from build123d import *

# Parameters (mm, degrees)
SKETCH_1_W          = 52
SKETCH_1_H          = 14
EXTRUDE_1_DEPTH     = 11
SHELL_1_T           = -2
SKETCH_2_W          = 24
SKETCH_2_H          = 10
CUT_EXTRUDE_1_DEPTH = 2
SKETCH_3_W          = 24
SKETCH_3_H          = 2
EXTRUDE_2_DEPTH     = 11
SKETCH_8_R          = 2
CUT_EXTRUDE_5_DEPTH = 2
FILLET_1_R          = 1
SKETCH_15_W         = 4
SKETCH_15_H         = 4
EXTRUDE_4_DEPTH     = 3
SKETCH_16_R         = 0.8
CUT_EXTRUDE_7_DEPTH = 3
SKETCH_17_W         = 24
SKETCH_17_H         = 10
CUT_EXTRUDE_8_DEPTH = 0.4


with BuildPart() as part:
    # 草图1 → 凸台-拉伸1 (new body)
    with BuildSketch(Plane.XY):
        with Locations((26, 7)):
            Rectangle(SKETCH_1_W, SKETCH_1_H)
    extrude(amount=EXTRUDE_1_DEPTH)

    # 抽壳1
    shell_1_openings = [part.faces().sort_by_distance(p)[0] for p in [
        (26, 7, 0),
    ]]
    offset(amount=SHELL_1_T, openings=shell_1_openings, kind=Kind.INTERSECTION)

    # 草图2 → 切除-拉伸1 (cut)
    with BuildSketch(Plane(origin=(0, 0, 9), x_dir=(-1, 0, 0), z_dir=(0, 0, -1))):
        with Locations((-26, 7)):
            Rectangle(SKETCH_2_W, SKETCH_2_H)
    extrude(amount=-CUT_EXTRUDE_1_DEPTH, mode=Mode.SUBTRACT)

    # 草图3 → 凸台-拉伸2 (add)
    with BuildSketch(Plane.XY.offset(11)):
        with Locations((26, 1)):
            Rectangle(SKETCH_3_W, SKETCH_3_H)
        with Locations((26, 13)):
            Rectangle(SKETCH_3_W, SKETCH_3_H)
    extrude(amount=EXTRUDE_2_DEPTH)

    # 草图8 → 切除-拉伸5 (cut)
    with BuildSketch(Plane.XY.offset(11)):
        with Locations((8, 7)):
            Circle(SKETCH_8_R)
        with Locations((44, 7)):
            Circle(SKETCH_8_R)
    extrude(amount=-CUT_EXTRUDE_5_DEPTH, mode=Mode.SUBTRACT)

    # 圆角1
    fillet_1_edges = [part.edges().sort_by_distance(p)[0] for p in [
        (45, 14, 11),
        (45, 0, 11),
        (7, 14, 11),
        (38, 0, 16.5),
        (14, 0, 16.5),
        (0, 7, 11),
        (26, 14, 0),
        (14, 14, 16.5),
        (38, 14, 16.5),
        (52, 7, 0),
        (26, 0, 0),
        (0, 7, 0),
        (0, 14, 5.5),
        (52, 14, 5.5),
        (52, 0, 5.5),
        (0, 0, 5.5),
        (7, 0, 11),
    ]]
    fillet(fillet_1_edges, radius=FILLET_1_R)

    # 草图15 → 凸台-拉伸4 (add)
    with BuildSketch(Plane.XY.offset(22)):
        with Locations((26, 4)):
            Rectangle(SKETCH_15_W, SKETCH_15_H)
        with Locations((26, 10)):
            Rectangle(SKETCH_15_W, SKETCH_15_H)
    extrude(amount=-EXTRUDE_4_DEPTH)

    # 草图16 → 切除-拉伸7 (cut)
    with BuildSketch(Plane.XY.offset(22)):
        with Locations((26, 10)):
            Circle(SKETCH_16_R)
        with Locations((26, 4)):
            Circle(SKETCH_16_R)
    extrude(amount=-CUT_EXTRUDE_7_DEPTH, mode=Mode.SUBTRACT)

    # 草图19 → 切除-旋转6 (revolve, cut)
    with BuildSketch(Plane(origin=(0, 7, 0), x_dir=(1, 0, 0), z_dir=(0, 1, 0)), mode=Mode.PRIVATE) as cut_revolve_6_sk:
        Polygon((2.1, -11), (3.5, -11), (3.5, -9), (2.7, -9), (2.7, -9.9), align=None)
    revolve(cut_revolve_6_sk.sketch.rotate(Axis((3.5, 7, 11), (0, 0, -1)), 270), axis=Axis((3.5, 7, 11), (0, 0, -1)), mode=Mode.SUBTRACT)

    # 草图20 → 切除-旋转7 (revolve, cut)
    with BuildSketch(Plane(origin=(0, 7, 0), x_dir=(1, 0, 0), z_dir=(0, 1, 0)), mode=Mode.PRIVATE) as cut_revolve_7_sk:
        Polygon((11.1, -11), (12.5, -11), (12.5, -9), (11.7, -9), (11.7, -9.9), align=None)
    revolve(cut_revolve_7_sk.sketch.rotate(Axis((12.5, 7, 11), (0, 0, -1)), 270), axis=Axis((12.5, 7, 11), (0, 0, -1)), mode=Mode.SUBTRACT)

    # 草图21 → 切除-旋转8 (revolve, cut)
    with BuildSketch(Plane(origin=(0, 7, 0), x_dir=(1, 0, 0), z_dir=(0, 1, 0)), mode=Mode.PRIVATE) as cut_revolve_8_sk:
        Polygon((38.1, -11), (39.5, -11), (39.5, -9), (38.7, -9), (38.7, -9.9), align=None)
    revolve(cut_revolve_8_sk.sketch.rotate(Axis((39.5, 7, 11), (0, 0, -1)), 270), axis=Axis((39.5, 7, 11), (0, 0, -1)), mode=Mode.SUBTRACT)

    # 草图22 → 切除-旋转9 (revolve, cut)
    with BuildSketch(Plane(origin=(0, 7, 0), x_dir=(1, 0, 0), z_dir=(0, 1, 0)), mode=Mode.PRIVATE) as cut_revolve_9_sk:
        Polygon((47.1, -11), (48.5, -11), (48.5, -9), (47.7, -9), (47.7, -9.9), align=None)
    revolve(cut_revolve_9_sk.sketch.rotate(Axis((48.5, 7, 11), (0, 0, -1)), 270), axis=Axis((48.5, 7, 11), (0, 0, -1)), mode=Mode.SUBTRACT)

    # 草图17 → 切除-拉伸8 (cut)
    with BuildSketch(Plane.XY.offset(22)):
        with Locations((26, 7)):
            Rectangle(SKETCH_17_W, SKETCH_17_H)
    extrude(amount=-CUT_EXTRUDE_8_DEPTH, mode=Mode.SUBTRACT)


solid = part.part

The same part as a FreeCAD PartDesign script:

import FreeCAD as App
import Part
import Sketcher

V = App.Vector


def edges_at(feature, points):
    """Names of the edges that pass closest to the given points."""
    edges = feature.Shape.Edges
    near = lambda p: min(range(len(edges)), key=lambda i: edges[i].distToShape(Part.Vertex(*p))[0])
    return sorted({f"Edge{near(p) + 1}" for p in points})


def faces_at(feature, points):
    """Names of the faces that lie closest to the given points."""
    faces = feature.Shape.Faces
    near = lambda p: min(range(len(faces)), key=lambda i: faces[i].distToShape(Part.Vertex(*p))[0])
    return sorted({f"Face{near(p) + 1}" for p in points})


def add_polygon(sketch, points):
    """Adds a closed chain of lines whose ends are joined by coincident constraints."""
    first, n = sketch.GeometryCount, len(points)
    for a, b in zip(points, points[1:] + points[:1]):
        sketch.addGeometry(Part.LineSegment(App.Vector(*a, 0), App.Vector(*b, 0)), False)
    for i in range(n):
        sketch.addConstraint(Sketcher.Constraint("Coincident", first + i, 2, first + (i + 1) % n, 1))

doc = App.newDocument("Part")
body = doc.addObject("PartDesign::Body", "Body")

# Sketch on XY plane
sketch1 = doc.addObject("Sketcher::SketchObject", "Sketch")
body.addObject(sketch1)
sketch1.AttachmentSupport = (doc.XY_Plane, [""])
sketch1.MapMode = "FlatFace"
add_polygon(sketch1, [(0, 14), (0, 0), (52, 0), (52, 14)])  # lines 0-3
sketch1.addConstraint(Sketcher.Constraint("Vertical", 0))
sketch1.addConstraint(Sketcher.Constraint("Horizontal", 1))
sketch1.addConstraint(Sketcher.Constraint("Vertical", 2))
sketch1.addConstraint(Sketcher.Constraint("Horizontal", 3))
sketch1.addConstraint(Sketcher.Constraint("Coincident", 0, 2, -1, 1))
sketch1.addConstraint(Sketcher.Constraint("DistanceX", 1, 1, 1, 2, 52.0))
sketch1.addConstraint(Sketcher.Constraint("DistanceY", 0, 2, 0, 1, 14.0))
pad1 = doc.addObject("PartDesign::Pad", "Pad")
body.addObject(pad1)
pad1.Profile = sketch1
pad1.Length = 11
doc.recompute()

thickness = doc.addObject("PartDesign::Thickness", "Thickness")
body.addObject(thickness)
thickness.Base = (pad1, faces_at(pad1, [(26, 7, 0)]))
thickness.Value = 2
thickness.Reversed = True
thickness.Join = "Intersection"

# Sketch on XY plane
sketch2 = doc.addObject("Sketcher::SketchObject", "Sketch001")
body.addObject(sketch2)
sketch2.AttachmentSupport = (doc.XY_Plane, [""])
sketch2.MapMode = "FlatFace"
sketch2.AttachmentOffset = App.Placement(V(0, 0, 9), App.Rotation())
add_polygon(sketch2, [(38, 12), (38, 2), (14, 2), (14, 12)])  # lines 0-3
sketch2.addConstraint(Sketcher.Constraint("Vertical", 0))
sketch2.addConstraint(Sketcher.Constraint("Horizontal", 1))
sketch2.addConstraint(Sketcher.Constraint("Vertical", 2))
sketch2.addConstraint(Sketcher.Constraint("Horizontal", 3))
sketch2.addConstraint(Sketcher.Constraint("DistanceX", 1, 2, 1, 1, 24.0))
sketch2.addConstraint(Sketcher.Constraint("DistanceY", 0, 2, 0, 1, 10.0))
sketch2.addConstraint(Sketcher.Constraint("DistanceX", -1, 1, 0, 2, 38.0))
sketch2.addConstraint(Sketcher.Constraint("DistanceY", -1, 1, 0, 2, 2.0))
pocket1 = doc.addObject("PartDesign::Pocket", "Pocket")
body.addObject(pocket1)
pocket1.Profile = sketch2
pocket1.Length = 2
pocket1.Reversed = True

# Sketch on XY plane
sketch3 = doc.addObject("Sketcher::SketchObject", "Sketch002")
body.addObject(sketch3)
sketch3.AttachmentSupport = (doc.XY_Plane, [""])
sketch3.MapMode = "FlatFace"
sketch3.AttachmentOffset = App.Placement(V(0, 0, 11), App.Rotation())
add_polygon(sketch3, [(14, 2), (14, 0), (38, 0), (38, 2)])  # lines 0-3
add_polygon(sketch3, [(14, 14), (14, 12), (38, 12), (38, 14)])  # lines 4-7
sketch3.addConstraint(Sketcher.Constraint("Vertical", 0))
sketch3.addConstraint(Sketcher.Constraint("Horizontal", 1))
sketch3.addConstraint(Sketcher.Constraint("Vertical", 2))
sketch3.addConstraint(Sketcher.Constraint("Horizontal", 3))
sketch3.addConstraint(Sketcher.Constraint("Vertical", 4))
sketch3.addConstraint(Sketcher.Constraint("Horizontal", 5))
sketch3.addConstraint(Sketcher.Constraint("Vertical", 6))
sketch3.addConstraint(Sketcher.Constraint("Horizontal", 7))
sketch3.addConstraint(Sketcher.Constraint("PointOnObject", 0, 2, -1))
sketch3.addConstraint(Sketcher.Constraint("Vertical", 3, 2, 4, 2))
sketch3.addConstraint(Sketcher.Constraint("Vertical", 2, 2, 5, 2))
sketch3.addConstraint(Sketcher.Constraint("Equal", 2, 4))
sketch3.addConstraint(Sketcher.Constraint("DistanceX", 1, 1, 1, 2, 24.0))
sketch3.addConstraint(Sketcher.Constraint("DistanceY", 0, 2, 0, 1, 2.0))
sketch3.addConstraint(Sketcher.Constraint("DistanceX", -1, 1, 0, 2, 14.0))
sketch3.addConstraint(Sketcher.Constraint("DistanceY", -1, 1, 4, 2, 12.0))
pad2 = doc.addObject("PartDesign::Pad", "Pad001")
body.addObject(pad2)
pad2.Profile = sketch3
pad2.Length = 11

# Sketch on XY plane
sketch4 = doc.addObject("Sketcher::SketchObject", "Sketch003")
body.addObject(sketch4)
sketch4.AttachmentSupport = (doc.XY_Plane, [""])
sketch4.MapMode = "FlatFace"
sketch4.AttachmentOffset = App.Placement(V(0, 0, 11), App.Rotation())
sketch4.addGeometry(Part.Circle(V(8, 7, 0), V(0, 0, 1), 2), False)
sketch4.addGeometry(Part.Circle(V(44, 7, 0), V(0, 0, 1), 2), False)
sketch4.addConstraint(Sketcher.Constraint("Equal", 0, 1))
sketch4.addConstraint(Sketcher.Constraint("Horizontal", 0, 3, 1, 3))
sketch4.addConstraint(Sketcher.Constraint("Diameter", 0, 4.0))
sketch4.addConstraint(Sketcher.Constraint("DistanceX", -1, 1, 0, 3, 8.0))
sketch4.addConstraint(Sketcher.Constraint("DistanceY", -1, 1, 0, 3, 7.0))
sketch4.addConstraint(Sketcher.Constraint("DistanceX", -1, 1, 1, 3, 44.0))
pocket2 = doc.addObject("PartDesign::Pocket", "Pocket001")
body.addObject(pocket2)
pocket2.Profile = sketch4
pocket2.Length = 2
doc.recompute()

fillet = doc.addObject("PartDesign::Fillet", "Fillet")
body.addObject(fillet)
fillet.Base = (pocket2, edges_at(pocket2, [
    (45, 14, 11),
    (45, 0, 11),
    (7, 14, 11),
    (38, 0, 16.5),
    (14, 0, 16.5),
    (0, 7, 11),
    (26, 14, 0),
    (14, 14, 16.5),
    (38, 14, 16.5),
    (52, 7, 0),
    (26, 0, 0),
    (0, 7, 0),
    (0, 14, 5.5),
    (52, 14, 5.5),
    (52, 0, 5.5),
    (0, 0, 5.5),
    (7, 0, 11),
]))
fillet.Radius = 1

# Sketch on XY plane
sketch5 = doc.addObject("Sketcher::SketchObject", "Sketch004")
body.addObject(sketch5)
sketch5.AttachmentSupport = (doc.XY_Plane, [""])
sketch5.MapMode = "FlatFace"
sketch5.AttachmentOffset = App.Placement(V(0, 0, 22), App.Rotation())
add_polygon(sketch5, [(24, 6), (24, 2), (28, 2), (28, 6)])  # lines 0-3
add_polygon(sketch5, [(24, 12), (24, 8), (28, 8), (28, 12)])  # lines 4-7
sketch5.addConstraint(Sketcher.Constraint("Vertical", 0))
sketch5.addConstraint(Sketcher.Constraint("Horizontal", 1))
sketch5.addConstraint(Sketcher.Constraint("Vertical", 2))
sketch5.addConstraint(Sketcher.Constraint("Horizontal", 3))
sketch5.addConstraint(Sketcher.Constraint("Vertical", 4))
sketch5.addConstraint(Sketcher.Constraint("Horizontal", 5))
sketch5.addConstraint(Sketcher.Constraint("Vertical", 6))
sketch5.addConstraint(Sketcher.Constraint("Horizontal", 7))
sketch5.addConstraint(Sketcher.Constraint("Vertical", 3, 2, 4, 2))
sketch5.addConstraint(Sketcher.Constraint("Vertical", 2, 2, 5, 2))
sketch5.addConstraint(Sketcher.Constraint("Equal", 7, 0))
sketch5.addConstraint(Sketcher.Constraint("Equal", 2, 4))
sketch5.addConstraint(Sketcher.Constraint("DistanceX", 1, 1, 1, 2, 4.0))
sketch5.addConstraint(Sketcher.Constraint("DistanceX", -1, 1, 0, 2, 24.0))
sketch5.addConstraint(Sketcher.Constraint("DistanceY", -1, 1, 0, 2, 2.0))
sketch5.addConstraint(Sketcher.Constraint("DistanceY", -1, 1, 4, 2, 8.0))
pad3 = doc.addObject("PartDesign::Pad", "Pad002")
body.addObject(pad3)
pad3.Profile = sketch5
pad3.Length = 3
pad3.Reversed = True

# Sketch on XY plane
sketch6 = doc.addObject("Sketcher::SketchObject", "Sketch005")
body.addObject(sketch6)
sketch6.AttachmentSupport = (doc.XY_Plane, [""])
sketch6.MapMode = "FlatFace"
sketch6.AttachmentOffset = App.Placement(V(0, 0, 22), App.Rotation())
sketch6.addGeometry(Part.Circle(V(26, 10, 0), V(0, 0, 1), 0.8), False)
sketch6.addGeometry(Part.Circle(V(26, 4, 0), V(0, 0, 1), 0.8), False)
sketch6.addConstraint(Sketcher.Constraint("Equal", 0, 1))
sketch6.addConstraint(Sketcher.Constraint("Vertical", 0, 3, 1, 3))
sketch6.addConstraint(Sketcher.Constraint("Diameter", 0, 1.6))
sketch6.addConstraint(Sketcher.Constraint("DistanceX", -1, 1, 0, 3, 26.0))
sketch6.addConstraint(Sketcher.Constraint("DistanceY", -1, 1, 0, 3, 10.0))
sketch6.addConstraint(Sketcher.Constraint("DistanceY", -1, 1, 1, 3, 4.0))
pocket3 = doc.addObject("PartDesign::Pocket", "Pocket002")
body.addObject(pocket3)
pocket3.Profile = sketch6
pocket3.Length = 3

# Sketch on XZ plane
sketch7 = doc.addObject("Sketcher::SketchObject", "Sketch006")
body.addObject(sketch7)
sketch7.AttachmentSupport = (doc.XZ_Plane, [""])
sketch7.MapMode = "FlatFace"
sketch7.AttachmentOffset = App.Placement(V(0, 0, -7), App.Rotation())
add_polygon(sketch7, [(2.1, 11), (3.5, 11), (3.5, 9), (2.7, 9), (2.7, 9.9)])  # lines 0-4
sketch7.addGeometry(Part.LineSegment(V(3.5, 11, 0), V(3.5, 9, 0)), True)  # axis
sketch7.addConstraint(Sketcher.Constraint("Horizontal", 0))
sketch7.addConstraint(Sketcher.Constraint("Vertical", 1))
sketch7.addConstraint(Sketcher.Constraint("Horizontal", 2))
sketch7.addConstraint(Sketcher.Constraint("Vertical", 3))
sketch7.addConstraint(Sketcher.Constraint("Vertical", 5))
sketch7.addConstraint(Sketcher.Constraint("Coincident", 5, 1, 0, 2))
sketch7.addConstraint(Sketcher.Constraint("Horizontal", 2, 2, 5, 2))
sketch7.addConstraint(Sketcher.Constraint("DistanceY", 1, 2, 1, 1, 2.0))
sketch7.addConstraint(Sketcher.Constraint("DistanceX", 0, 1, 0, 2, 1.4))
sketch7.addConstraint(Sketcher.Constraint("DistanceX", 2, 2, 2, 1, 0.8))
sketch7.addConstraint(Sketcher.Constraint("DistanceY", 3, 1, 3, 2, 0.9))
sketch7.addConstraint(Sketcher.Constraint("DistanceY", -1, 1, 0, 2, 11.0))
sketch7.addConstraint(Sketcher.Constraint("DistanceX", -1, 1, 0, 2, 3.5))
groove = doc.addObject("PartDesign::Groove", "Groove")
body.addObject(groove)
groove.Profile = sketch7
groove.ReferenceAxis = (sketch7, ["Axis0"])
groove.Angle = 360

# Sketch on XZ plane
sketch8 = doc.addObject("Sketcher::SketchObject", "Sketch007")
body.addObject(sketch8)
sketch8.AttachmentSupport = (doc.XZ_Plane, [""])
sketch8.MapMode = "FlatFace"
sketch8.AttachmentOffset = App.Placement(V(0, 0, -7), App.Rotation())
add_polygon(sketch8, [(11.1, 11), (12.5, 11), (12.5, 9), (11.7, 9), (11.7, 9.9)])  # lines 0-4
sketch8.addGeometry(Part.LineSegment(V(12.5, 11, 0), V(12.5, 9, 0)), True)  # axis
sketch8.addConstraint(Sketcher.Constraint("Horizontal", 0))
sketch8.addConstraint(Sketcher.Constraint("Vertical", 1))
sketch8.addConstraint(Sketcher.Constraint("Horizontal", 2))
sketch8.addConstraint(Sketcher.Constraint("Vertical", 3))
sketch8.addConstraint(Sketcher.Constraint("Vertical", 5))
sketch8.addConstraint(Sketcher.Constraint("Coincident", 5, 1, 0, 2))
sketch8.addConstraint(Sketcher.Constraint("Horizontal", 2, 2, 5, 2))
sketch8.addConstraint(Sketcher.Constraint("DistanceY", 1, 2, 1, 1, 2.0))
sketch8.addConstraint(Sketcher.Constraint("DistanceX", 0, 1, 0, 2, 1.4))
sketch8.addConstraint(Sketcher.Constraint("DistanceX", 2, 2, 2, 1, 0.8))
sketch8.addConstraint(Sketcher.Constraint("DistanceY", 3, 1, 3, 2, 0.9))
sketch8.addConstraint(Sketcher.Constraint("DistanceY", -1, 1, 0, 2, 11.0))
sketch8.addConstraint(Sketcher.Constraint("DistanceX", -1, 1, 0, 2, 12.5))
groove2 = doc.addObject("PartDesign::Groove", "Groove001")
body.addObject(groove2)
groove2.Profile = sketch8
groove2.ReferenceAxis = (sketch8, ["Axis0"])
groove2.Angle = 360

# Sketch on XZ plane
sketch9 = doc.addObject("Sketcher::SketchObject", "Sketch008")
body.addObject(sketch9)
sketch9.AttachmentSupport = (doc.XZ_Plane, [""])
sketch9.MapMode = "FlatFace"
sketch9.AttachmentOffset = App.Placement(V(0, 0, -7), App.Rotation())
add_polygon(sketch9, [(38.1, 11), (39.5, 11), (39.5, 9), (38.7, 9), (38.7, 9.9)])  # lines 0-4
sketch9.addGeometry(Part.LineSegment(V(39.5, 11, 0), V(39.5, 9, 0)), True)  # axis
sketch9.addConstraint(Sketcher.Constraint("Horizontal", 0))
sketch9.addConstraint(Sketcher.Constraint("Vertical", 1))
sketch9.addConstraint(Sketcher.Constraint("Horizontal", 2))
sketch9.addConstraint(Sketcher.Constraint("Vertical", 3))
sketch9.addConstraint(Sketcher.Constraint("Vertical", 5))
sketch9.addConstraint(Sketcher.Constraint("Coincident", 5, 1, 0, 2))
sketch9.addConstraint(Sketcher.Constraint("Horizontal", 2, 2, 5, 2))
sketch9.addConstraint(Sketcher.Constraint("DistanceY", 1, 2, 1, 1, 2.0))
sketch9.addConstraint(Sketcher.Constraint("DistanceX", 0, 1, 0, 2, 1.4))
sketch9.addConstraint(Sketcher.Constraint("DistanceX", 2, 2, 2, 1, 0.8))
sketch9.addConstraint(Sketcher.Constraint("DistanceY", 3, 1, 3, 2, 0.9))
sketch9.addConstraint(Sketcher.Constraint("DistanceY", -1, 1, 0, 2, 11.0))
sketch9.addConstraint(Sketcher.Constraint("DistanceX", -1, 1, 0, 2, 39.5))
groove3 = doc.addObject("PartDesign::Groove", "Groove002")
body.addObject(groove3)
groove3.Profile = sketch9
groove3.ReferenceAxis = (sketch9, ["Axis0"])
groove3.Angle = 360

# Sketch on XZ plane
sketch10 = doc.addObject("Sketcher::SketchObject", "Sketch009")
body.addObject(sketch10)
sketch10.AttachmentSupport = (doc.XZ_Plane, [""])
sketch10.MapMode = "FlatFace"
sketch10.AttachmentOffset = App.Placement(V(0, 0, -7), App.Rotation())
add_polygon(sketch10, [(47.1, 11), (48.5, 11), (48.5, 9), (47.7, 9), (47.7, 9.9)])  # lines 0-4
sketch10.addGeometry(Part.LineSegment(V(48.5, 11, 0), V(48.5, 9, 0)), True)  # axis
sketch10.addConstraint(Sketcher.Constraint("Horizontal", 0))
sketch10.addConstraint(Sketcher.Constraint("Vertical", 1))
sketch10.addConstraint(Sketcher.Constraint("Horizontal", 2))
sketch10.addConstraint(Sketcher.Constraint("Vertical", 3))
sketch10.addConstraint(Sketcher.Constraint("Vertical", 5))
sketch10.addConstraint(Sketcher.Constraint("Coincident", 5, 1, 0, 2))
sketch10.addConstraint(Sketcher.Constraint("Horizontal", 2, 2, 5, 2))
sketch10.addConstraint(Sketcher.Constraint("DistanceY", 1, 2, 1, 1, 2.0))
sketch10.addConstraint(Sketcher.Constraint("DistanceX", 0, 1, 0, 2, 1.4))
sketch10.addConstraint(Sketcher.Constraint("DistanceX", 2, 2, 2, 1, 0.8))
sketch10.addConstraint(Sketcher.Constraint("DistanceY", 3, 1, 3, 2, 0.9))
sketch10.addConstraint(Sketcher.Constraint("DistanceY", -1, 1, 0, 2, 11.0))
sketch10.addConstraint(Sketcher.Constraint("DistanceX", -1, 1, 0, 2, 48.5))
groove4 = doc.addObject("PartDesign::Groove", "Groove003")
body.addObject(groove4)
groove4.Profile = sketch10
groove4.ReferenceAxis = (sketch10, ["Axis0"])
groove4.Angle = 360

# Sketch on XY plane
sketch11 = doc.addObject("Sketcher::SketchObject", "Sketch010")
body.addObject(sketch11)
sketch11.AttachmentSupport = (doc.XY_Plane, [""])
sketch11.MapMode = "FlatFace"
sketch11.AttachmentOffset = App.Placement(V(0, 0, 22), App.Rotation())
add_polygon(sketch11, [(14, 12), (14, 2), (38, 2), (38, 12)])  # lines 0-3
sketch11.addConstraint(Sketcher.Constraint("Vertical", 0))
sketch11.addConstraint(Sketcher.Constraint("Horizontal", 1))
sketch11.addConstraint(Sketcher.Constraint("Vertical", 2))
sketch11.addConstraint(Sketcher.Constraint("Horizontal", 3))
sketch11.addConstraint(Sketcher.Constraint("DistanceX", 1, 1, 1, 2, 24.0))
sketch11.addConstraint(Sketcher.Constraint("DistanceY", 0, 2, 0, 1, 10.0))
sketch11.addConstraint(Sketcher.Constraint("DistanceX", -1, 1, 0, 2, 14.0))
sketch11.addConstraint(Sketcher.Constraint("DistanceY", -1, 1, 0, 2, 2.0))
pocket4 = doc.addObject("PartDesign::Pocket", "Pocket003")
body.addObject(pocket4)
pocket4.Profile = sketch11
pocket4.Length = 0.4

doc.recompute()
